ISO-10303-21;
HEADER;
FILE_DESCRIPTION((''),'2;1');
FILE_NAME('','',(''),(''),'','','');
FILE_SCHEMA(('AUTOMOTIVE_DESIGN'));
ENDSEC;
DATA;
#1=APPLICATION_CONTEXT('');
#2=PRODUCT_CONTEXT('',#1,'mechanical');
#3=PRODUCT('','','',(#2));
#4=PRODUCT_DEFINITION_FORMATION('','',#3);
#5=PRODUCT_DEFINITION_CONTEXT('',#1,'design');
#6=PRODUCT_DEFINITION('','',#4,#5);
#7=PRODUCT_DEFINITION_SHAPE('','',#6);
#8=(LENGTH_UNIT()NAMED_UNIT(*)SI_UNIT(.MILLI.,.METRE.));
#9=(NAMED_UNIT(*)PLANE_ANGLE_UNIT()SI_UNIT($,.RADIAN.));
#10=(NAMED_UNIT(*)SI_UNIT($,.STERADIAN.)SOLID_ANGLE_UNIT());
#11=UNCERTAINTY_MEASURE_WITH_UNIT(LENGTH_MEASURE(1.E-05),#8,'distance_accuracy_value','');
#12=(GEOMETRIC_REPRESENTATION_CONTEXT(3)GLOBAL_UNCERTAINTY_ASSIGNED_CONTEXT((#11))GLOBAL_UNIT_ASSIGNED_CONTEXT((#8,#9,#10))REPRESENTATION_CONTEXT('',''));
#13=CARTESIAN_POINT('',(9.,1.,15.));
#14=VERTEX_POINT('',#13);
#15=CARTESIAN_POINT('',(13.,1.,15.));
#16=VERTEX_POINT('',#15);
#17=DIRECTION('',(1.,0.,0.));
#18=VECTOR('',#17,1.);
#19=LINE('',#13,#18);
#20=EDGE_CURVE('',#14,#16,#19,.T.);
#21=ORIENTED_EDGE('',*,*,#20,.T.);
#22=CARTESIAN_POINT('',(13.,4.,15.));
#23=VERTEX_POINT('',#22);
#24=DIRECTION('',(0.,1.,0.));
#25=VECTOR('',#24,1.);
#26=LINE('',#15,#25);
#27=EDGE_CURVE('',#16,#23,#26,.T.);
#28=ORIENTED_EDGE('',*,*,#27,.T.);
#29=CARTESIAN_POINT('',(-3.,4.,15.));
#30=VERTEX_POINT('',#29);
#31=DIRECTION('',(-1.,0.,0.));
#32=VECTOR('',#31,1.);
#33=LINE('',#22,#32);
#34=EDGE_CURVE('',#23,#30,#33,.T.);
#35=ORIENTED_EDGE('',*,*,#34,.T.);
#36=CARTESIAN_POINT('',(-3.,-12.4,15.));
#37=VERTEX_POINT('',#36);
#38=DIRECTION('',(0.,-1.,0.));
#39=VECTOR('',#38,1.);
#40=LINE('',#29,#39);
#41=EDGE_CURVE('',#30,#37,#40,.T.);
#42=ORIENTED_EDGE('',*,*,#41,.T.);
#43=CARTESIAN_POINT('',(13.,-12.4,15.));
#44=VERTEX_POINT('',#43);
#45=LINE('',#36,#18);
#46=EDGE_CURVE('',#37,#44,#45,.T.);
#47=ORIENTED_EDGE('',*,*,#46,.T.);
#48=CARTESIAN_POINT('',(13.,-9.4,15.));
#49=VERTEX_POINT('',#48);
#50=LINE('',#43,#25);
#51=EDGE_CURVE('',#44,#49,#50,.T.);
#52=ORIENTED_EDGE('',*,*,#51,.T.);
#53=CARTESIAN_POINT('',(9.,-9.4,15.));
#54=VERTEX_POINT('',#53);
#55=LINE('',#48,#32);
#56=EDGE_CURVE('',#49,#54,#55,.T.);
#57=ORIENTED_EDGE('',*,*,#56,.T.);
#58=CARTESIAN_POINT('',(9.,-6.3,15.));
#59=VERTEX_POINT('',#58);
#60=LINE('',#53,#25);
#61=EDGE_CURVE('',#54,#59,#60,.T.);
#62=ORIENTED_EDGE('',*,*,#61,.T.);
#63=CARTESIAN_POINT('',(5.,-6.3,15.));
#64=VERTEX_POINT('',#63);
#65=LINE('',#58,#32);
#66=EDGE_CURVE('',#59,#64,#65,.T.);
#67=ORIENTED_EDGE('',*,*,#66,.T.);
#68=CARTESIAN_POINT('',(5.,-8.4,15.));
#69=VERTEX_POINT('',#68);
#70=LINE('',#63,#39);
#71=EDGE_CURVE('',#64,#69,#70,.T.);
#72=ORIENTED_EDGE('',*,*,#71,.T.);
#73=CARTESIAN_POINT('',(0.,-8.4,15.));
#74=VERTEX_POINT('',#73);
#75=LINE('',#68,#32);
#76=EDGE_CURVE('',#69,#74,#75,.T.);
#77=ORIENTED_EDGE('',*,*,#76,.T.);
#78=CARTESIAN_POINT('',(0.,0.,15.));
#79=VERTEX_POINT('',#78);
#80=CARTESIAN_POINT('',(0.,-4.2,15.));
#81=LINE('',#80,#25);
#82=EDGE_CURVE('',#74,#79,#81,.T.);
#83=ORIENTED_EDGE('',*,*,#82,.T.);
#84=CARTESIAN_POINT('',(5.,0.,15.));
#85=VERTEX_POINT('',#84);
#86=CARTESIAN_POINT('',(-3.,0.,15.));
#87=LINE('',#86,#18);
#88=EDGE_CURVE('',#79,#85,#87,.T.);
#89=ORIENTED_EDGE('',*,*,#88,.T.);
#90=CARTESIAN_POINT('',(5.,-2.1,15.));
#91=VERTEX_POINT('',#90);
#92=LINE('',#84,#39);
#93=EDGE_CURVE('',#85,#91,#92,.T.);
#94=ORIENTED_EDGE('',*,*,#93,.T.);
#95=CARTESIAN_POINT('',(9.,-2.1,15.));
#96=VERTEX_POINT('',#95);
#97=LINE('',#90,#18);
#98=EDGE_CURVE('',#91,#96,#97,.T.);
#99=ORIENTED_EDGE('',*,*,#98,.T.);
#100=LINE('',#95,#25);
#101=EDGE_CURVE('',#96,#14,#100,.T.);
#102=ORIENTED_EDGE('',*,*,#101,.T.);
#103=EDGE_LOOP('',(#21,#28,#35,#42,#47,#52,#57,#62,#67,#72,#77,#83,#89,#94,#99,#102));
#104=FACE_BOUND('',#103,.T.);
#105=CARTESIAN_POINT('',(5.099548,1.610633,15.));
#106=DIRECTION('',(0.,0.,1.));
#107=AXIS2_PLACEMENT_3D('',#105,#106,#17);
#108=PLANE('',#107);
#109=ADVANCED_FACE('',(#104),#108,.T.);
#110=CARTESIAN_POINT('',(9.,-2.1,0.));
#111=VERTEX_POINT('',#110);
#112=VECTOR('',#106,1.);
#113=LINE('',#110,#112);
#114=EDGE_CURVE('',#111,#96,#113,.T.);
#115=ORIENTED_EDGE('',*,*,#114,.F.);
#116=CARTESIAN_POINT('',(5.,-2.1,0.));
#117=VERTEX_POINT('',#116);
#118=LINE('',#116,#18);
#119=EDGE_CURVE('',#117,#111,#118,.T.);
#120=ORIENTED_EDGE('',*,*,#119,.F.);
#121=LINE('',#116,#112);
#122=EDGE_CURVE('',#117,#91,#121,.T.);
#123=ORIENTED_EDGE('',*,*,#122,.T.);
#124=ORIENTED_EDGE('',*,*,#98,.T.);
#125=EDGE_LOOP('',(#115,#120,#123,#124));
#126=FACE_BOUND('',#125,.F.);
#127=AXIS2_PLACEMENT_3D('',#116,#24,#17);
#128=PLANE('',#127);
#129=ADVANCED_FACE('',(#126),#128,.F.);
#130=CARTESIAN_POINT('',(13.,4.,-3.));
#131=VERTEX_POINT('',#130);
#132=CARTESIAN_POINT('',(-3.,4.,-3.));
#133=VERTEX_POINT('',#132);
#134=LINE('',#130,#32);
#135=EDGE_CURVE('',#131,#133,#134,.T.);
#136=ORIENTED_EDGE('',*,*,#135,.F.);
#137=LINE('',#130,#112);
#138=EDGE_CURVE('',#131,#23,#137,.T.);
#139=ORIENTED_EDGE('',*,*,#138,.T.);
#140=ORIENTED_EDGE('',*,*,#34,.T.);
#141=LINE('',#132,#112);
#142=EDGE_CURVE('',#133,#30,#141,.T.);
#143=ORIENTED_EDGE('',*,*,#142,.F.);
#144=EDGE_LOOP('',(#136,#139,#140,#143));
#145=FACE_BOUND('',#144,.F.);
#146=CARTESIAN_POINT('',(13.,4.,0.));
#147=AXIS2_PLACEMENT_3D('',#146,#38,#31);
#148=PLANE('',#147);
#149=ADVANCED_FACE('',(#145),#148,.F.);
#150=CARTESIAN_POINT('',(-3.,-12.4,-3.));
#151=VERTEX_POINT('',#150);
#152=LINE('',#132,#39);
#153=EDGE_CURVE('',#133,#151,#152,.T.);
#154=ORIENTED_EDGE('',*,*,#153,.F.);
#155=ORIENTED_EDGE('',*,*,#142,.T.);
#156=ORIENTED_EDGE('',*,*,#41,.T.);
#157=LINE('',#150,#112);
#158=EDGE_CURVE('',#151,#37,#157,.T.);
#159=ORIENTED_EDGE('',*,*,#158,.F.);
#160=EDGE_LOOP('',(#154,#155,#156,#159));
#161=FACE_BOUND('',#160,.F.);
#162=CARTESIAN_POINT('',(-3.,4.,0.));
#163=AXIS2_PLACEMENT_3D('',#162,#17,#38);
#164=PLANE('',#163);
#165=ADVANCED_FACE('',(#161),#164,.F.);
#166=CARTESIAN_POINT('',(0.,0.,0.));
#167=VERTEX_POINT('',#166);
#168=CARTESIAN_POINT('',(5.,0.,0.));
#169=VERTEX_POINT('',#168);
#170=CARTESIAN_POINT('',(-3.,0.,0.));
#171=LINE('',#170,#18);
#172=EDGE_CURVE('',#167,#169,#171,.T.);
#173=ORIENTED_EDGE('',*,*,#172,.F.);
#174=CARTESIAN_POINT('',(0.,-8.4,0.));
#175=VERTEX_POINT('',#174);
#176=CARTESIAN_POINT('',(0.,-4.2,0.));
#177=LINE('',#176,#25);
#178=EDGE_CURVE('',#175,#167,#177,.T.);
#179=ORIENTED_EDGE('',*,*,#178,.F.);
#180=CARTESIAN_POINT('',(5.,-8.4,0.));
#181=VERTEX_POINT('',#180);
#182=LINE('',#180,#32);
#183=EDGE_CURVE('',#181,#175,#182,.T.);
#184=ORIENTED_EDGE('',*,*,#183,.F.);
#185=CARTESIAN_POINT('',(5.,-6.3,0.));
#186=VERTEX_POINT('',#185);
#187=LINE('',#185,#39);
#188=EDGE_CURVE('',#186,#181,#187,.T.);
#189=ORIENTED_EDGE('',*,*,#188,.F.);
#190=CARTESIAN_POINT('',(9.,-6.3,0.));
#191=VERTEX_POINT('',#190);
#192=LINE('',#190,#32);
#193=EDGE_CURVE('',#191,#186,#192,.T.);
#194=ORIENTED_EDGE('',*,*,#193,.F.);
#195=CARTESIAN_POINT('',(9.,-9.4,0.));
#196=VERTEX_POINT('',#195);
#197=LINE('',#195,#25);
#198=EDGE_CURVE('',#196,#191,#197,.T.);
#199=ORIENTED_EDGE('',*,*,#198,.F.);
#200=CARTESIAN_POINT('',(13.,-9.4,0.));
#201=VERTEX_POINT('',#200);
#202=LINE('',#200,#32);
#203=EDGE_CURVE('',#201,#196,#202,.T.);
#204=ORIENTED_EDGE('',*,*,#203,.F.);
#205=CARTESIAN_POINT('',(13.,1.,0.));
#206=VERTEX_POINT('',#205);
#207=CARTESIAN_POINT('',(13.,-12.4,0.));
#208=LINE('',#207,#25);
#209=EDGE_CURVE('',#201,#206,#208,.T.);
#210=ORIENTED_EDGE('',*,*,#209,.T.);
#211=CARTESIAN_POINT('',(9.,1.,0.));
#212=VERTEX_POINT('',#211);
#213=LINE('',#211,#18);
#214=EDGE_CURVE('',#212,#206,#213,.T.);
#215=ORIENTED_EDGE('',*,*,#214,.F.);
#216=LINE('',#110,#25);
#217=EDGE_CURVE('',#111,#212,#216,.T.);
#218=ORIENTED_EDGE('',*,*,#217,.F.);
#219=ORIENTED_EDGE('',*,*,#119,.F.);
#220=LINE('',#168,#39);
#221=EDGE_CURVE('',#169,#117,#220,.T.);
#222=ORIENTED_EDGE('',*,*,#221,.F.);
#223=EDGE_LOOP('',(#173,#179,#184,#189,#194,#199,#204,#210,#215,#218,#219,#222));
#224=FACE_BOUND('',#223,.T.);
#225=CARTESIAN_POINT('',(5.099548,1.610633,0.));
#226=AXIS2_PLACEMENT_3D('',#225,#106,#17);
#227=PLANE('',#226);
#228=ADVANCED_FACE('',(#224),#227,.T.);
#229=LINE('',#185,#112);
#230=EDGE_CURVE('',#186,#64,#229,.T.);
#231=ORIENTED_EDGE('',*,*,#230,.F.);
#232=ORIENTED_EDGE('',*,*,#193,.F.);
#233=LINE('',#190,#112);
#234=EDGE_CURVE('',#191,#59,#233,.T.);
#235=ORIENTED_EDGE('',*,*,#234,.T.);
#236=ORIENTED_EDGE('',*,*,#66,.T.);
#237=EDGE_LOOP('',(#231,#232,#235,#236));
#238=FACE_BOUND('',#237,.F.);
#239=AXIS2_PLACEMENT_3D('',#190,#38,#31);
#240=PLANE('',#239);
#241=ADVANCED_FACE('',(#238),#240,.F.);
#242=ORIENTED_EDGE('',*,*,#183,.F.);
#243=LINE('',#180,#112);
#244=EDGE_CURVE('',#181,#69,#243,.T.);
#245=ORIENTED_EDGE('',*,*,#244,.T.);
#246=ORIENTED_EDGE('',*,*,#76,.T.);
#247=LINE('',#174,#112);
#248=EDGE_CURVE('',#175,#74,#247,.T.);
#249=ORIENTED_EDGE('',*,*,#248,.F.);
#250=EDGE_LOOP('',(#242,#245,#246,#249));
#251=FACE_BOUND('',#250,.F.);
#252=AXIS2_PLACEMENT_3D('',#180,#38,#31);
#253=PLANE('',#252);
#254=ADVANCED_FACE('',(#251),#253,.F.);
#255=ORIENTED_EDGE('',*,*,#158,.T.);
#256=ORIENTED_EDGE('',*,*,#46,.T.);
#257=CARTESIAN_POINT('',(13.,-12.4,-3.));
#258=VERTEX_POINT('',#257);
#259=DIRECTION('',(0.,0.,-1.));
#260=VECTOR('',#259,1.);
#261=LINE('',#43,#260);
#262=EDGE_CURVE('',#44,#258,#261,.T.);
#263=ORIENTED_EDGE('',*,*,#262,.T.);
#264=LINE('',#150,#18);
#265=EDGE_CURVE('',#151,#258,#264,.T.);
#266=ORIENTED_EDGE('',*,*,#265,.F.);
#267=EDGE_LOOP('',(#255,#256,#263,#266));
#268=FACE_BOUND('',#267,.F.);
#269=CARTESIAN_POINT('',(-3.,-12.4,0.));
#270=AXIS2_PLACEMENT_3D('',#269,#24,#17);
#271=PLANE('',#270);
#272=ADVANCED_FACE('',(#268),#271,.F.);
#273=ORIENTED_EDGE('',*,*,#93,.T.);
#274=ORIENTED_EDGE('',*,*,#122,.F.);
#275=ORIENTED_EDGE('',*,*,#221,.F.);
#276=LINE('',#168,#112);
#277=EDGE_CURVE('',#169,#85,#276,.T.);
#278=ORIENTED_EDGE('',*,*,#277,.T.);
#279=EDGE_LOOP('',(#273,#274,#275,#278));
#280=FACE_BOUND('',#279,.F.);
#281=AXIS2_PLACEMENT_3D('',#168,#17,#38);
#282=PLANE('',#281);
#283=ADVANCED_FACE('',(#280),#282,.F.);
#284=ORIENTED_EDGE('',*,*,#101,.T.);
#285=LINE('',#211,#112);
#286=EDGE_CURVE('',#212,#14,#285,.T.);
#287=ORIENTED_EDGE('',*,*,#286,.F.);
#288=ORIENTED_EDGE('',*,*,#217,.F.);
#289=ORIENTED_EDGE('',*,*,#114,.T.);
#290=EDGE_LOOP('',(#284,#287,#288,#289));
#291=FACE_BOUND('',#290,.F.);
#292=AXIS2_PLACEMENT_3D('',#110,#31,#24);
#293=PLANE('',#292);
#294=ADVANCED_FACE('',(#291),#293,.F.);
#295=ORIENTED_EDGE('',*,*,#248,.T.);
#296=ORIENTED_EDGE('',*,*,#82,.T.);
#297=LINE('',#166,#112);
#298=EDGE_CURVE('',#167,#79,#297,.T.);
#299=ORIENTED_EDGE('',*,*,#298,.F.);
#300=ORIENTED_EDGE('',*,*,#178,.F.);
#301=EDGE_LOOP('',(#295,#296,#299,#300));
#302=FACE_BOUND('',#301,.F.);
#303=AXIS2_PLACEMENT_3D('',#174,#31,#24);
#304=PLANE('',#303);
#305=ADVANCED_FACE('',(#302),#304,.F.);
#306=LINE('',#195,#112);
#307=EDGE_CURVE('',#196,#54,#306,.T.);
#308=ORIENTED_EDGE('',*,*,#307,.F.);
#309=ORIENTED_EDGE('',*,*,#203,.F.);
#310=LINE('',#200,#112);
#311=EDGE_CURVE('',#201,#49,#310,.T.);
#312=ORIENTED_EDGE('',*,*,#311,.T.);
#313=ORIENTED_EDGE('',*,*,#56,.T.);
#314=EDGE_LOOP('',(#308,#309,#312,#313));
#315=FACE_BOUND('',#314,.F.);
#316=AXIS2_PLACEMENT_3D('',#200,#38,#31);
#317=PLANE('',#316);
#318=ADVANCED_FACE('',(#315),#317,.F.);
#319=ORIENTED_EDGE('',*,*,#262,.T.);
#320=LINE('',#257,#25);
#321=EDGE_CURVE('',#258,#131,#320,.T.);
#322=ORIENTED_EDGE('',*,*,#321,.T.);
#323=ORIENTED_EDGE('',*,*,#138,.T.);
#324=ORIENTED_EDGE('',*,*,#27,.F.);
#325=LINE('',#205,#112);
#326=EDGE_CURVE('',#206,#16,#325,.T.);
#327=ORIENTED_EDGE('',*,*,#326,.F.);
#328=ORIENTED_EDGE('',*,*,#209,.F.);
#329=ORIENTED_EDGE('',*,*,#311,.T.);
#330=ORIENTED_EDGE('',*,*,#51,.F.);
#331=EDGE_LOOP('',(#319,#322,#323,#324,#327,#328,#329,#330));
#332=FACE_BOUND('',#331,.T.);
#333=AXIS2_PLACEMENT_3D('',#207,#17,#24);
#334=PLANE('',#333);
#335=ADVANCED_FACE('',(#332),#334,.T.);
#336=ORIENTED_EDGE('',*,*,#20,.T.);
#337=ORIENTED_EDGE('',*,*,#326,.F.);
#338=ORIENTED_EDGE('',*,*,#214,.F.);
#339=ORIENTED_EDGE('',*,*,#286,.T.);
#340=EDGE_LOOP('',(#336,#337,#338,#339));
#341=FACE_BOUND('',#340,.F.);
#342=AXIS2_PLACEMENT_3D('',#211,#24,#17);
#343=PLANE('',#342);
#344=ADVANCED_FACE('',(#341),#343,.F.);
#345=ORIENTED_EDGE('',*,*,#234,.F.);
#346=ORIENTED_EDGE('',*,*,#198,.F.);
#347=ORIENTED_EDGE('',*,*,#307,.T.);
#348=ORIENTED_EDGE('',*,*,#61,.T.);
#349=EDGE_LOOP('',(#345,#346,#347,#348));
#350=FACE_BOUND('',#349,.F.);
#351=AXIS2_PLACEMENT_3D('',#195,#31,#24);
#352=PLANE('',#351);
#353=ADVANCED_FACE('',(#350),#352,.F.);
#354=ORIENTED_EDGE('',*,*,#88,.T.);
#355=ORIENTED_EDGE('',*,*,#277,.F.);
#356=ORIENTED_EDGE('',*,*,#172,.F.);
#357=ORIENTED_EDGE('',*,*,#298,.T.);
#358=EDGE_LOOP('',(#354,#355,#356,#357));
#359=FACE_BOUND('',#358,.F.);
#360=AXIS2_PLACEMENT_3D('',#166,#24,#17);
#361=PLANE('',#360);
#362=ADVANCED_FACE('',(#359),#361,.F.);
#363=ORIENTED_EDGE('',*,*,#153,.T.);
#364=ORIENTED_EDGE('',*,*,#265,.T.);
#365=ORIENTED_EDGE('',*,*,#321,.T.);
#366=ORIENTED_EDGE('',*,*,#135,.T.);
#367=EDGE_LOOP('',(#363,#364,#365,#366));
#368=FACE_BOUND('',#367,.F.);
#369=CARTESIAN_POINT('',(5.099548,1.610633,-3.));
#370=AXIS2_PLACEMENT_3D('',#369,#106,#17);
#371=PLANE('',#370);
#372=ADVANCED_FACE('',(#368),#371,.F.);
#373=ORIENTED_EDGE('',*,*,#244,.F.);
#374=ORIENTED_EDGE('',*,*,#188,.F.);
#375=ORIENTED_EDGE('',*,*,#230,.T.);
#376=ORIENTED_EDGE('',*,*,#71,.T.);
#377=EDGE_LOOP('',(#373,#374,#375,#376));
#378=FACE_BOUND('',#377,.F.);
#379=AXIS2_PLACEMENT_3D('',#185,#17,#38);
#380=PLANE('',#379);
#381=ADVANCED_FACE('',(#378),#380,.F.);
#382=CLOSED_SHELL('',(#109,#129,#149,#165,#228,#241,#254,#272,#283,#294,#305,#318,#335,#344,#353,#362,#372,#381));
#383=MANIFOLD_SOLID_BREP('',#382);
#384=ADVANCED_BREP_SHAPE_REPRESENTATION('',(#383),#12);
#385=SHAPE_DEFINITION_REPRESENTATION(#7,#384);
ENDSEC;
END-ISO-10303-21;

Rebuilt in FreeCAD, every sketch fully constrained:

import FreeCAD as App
import Part
import Sketcher


def add_polygon(sketch, points):
    """Adds a closed chain of lines whose ends are joined by coincident constraints."""
    first, n = sketch.GeometryCount, len(points)
    for a, b in zip(points, points[1:] + points[:1]):
        sketch.addGeometry(Part.LineSegment(App.Vector(*a, 0), App.Vector(*b, 0)), False)
    for i in range(n):
        sketch.addConstraint(Sketcher.Constraint("Coincident", first + i, 2, first + (i + 1) % n, 1))

doc = App.newDocument("Part")
body = doc.addObject("PartDesign::Body", "Body")

# Sketch on XY plane
sketch1 = doc.addObject("Sketcher::SketchObject", "Sketch")
body.addObject(sketch1)
sketch1.AttachmentSupport = (doc.XY_Plane, [""])
sketch1.MapMode = "FlatFace"
add_polygon(sketch1, [(13, 4), (-3, 4), (-3, -12), (13, -12)])  # lines 0-3
sketch1.addConstraint(Sketcher.Constraint("Horizontal", 0))
sketch1.addConstraint(Sketcher.Constraint("Vertical", 1))
sketch1.addConstraint(Sketcher.Constraint("Horizontal", 2))
sketch1.addConstraint(Sketcher.Constraint("Vertical", 3))
sketch1.addConstraint(Sketcher.Constraint("DistanceX", 0, 2, 0, 1, 16.0))
sketch1.addConstraint(Sketcher.Constraint("DistanceY", 1, 2, 1, 1, 16.4))
sketch1.addConstraint(Sketcher.Constraint("DistanceX", 0, 2, -1, 1, 3.0))
sketch1.addConstraint(Sketcher.Constraint("DistanceY", -1, 1, 0, 2, 4.0))
pad1 = doc.addObject("PartDesign::Pad", "Pad")
body.addObject(pad1)
pad1.Profile = sketch1
pad1.Length = 3
pad1.Reversed = True

# Sketch on XY plane
sketch2 = doc.addObject("Sketcher::SketchObject", "Sketch001")
body.addObject(sketch2)
sketch2.AttachmentSupport = (doc.XY_Plane, [""])
sketch2.MapMode = "FlatFace"
add_polygon(sketch2, [(0, 0), (5, 0), (5, -2.1), (9, -2.1), (9, 1), (13, 1), (13, 4), (-3, 4), (-3, -12.4), (13, -12.4), (13, -9.4), (9, -9.4), (9, -6.3), (5, -6.3), (5, -8.4), (0, -8.4)])  # lines 0-15
sketch2.addConstraint(Sketcher.Constraint("Horizontal", 0))
sketch2.addConstraint(Sketcher.Constraint("Vertical", 1))
sketch2.addConstraint(Sketcher.Constraint("Horizontal", 2))
sketch2.addConstraint(Sketcher.Constraint("Vertical", 3))
sketch2.addConstraint(Sketcher.Constraint("Horizontal", 4))
sketch2.addConstraint(Sketcher.Constraint("Vertical", 5))
sketch2.addConstraint(Sketcher.Constraint("Horizontal", 6))
sketch2.addConstraint(Sketcher.Constraint("Vertical", 7))
sketch2.addConstraint(Sketcher.Constraint("Horizontal", 8))
sketch2.addConstraint(Sketcher.Constraint("Vertical", 9))
sketch2.addConstraint(Sketcher.Constraint("Horizontal", 10))
sketch2.addConstraint(Sketcher.Constraint("Vertical", 11))
sketch2.addConstraint(Sketcher.Constraint("Horizontal", 12))
sketch2.addConstraint(Sketcher.Constraint("Vertical", 13))
sketch2.addConstraint(Sketcher.Constraint("Horizontal", 14))
sketch2.addConstraint(Sketcher.Constraint("Vertical", 15))
sketch2.addConstraint(Sketcher.Constraint("Coincident", 15, 2, -1, 1))
sketch2.addConstraint(Sketcher.Constraint("Vertical", 5, 2, 8, 2))
sketch2.addConstraint(Sketcher.Constraint("Vertical", 3, 2, 10, 2))
sketch2.addConstraint(Sketcher.Constraint("Vertical", 1, 2, 12, 2))
sketch2.addConstraint(Sketcher.Constraint("Equal", 2, 4))
sketch2.addConstraint(Sketcher.Constraint("Equal", 5, 9))
sketch2.addConstraint(Sketcher.Constraint("Equal", 3, 11))
sketch2.addConstraint(Sketcher.Constraint("Equal", 1, 13))
sketch2.addConstraint(Sketcher.Constraint("DistanceX", 0, 1, 0, 2, 5.0))
sketch2.addConstraint(Sketcher.Constraint("DistanceX", 2, 1, 2, 2, 4.0))
sketch2.addConstraint(Sketcher.Constraint("DistanceX", 6, 2, 6, 1, 16.0))
sketch2.addConstraint(Sketcher.Constraint("DistanceY", 5, 1, 5, 2, 3.0))
sketch2.addConstraint(Sketcher.Constraint("DistanceY", 1, 2, 1, 1, 2.1))
sketch2.addConstraint(Sketcher.Constraint("DistanceY", 3, 1, 3, 2, 3.1))
sketch2.addConstraint(Sketcher.Constraint("DistanceY", 7, 2, 7, 1, 16.4))
pad2 = doc.addObject("PartDesign::Pad", "Pad001")
body.addObject(pad2)
pad2.Profile = sketch2
pad2.Length = 15

doc.recompute()
